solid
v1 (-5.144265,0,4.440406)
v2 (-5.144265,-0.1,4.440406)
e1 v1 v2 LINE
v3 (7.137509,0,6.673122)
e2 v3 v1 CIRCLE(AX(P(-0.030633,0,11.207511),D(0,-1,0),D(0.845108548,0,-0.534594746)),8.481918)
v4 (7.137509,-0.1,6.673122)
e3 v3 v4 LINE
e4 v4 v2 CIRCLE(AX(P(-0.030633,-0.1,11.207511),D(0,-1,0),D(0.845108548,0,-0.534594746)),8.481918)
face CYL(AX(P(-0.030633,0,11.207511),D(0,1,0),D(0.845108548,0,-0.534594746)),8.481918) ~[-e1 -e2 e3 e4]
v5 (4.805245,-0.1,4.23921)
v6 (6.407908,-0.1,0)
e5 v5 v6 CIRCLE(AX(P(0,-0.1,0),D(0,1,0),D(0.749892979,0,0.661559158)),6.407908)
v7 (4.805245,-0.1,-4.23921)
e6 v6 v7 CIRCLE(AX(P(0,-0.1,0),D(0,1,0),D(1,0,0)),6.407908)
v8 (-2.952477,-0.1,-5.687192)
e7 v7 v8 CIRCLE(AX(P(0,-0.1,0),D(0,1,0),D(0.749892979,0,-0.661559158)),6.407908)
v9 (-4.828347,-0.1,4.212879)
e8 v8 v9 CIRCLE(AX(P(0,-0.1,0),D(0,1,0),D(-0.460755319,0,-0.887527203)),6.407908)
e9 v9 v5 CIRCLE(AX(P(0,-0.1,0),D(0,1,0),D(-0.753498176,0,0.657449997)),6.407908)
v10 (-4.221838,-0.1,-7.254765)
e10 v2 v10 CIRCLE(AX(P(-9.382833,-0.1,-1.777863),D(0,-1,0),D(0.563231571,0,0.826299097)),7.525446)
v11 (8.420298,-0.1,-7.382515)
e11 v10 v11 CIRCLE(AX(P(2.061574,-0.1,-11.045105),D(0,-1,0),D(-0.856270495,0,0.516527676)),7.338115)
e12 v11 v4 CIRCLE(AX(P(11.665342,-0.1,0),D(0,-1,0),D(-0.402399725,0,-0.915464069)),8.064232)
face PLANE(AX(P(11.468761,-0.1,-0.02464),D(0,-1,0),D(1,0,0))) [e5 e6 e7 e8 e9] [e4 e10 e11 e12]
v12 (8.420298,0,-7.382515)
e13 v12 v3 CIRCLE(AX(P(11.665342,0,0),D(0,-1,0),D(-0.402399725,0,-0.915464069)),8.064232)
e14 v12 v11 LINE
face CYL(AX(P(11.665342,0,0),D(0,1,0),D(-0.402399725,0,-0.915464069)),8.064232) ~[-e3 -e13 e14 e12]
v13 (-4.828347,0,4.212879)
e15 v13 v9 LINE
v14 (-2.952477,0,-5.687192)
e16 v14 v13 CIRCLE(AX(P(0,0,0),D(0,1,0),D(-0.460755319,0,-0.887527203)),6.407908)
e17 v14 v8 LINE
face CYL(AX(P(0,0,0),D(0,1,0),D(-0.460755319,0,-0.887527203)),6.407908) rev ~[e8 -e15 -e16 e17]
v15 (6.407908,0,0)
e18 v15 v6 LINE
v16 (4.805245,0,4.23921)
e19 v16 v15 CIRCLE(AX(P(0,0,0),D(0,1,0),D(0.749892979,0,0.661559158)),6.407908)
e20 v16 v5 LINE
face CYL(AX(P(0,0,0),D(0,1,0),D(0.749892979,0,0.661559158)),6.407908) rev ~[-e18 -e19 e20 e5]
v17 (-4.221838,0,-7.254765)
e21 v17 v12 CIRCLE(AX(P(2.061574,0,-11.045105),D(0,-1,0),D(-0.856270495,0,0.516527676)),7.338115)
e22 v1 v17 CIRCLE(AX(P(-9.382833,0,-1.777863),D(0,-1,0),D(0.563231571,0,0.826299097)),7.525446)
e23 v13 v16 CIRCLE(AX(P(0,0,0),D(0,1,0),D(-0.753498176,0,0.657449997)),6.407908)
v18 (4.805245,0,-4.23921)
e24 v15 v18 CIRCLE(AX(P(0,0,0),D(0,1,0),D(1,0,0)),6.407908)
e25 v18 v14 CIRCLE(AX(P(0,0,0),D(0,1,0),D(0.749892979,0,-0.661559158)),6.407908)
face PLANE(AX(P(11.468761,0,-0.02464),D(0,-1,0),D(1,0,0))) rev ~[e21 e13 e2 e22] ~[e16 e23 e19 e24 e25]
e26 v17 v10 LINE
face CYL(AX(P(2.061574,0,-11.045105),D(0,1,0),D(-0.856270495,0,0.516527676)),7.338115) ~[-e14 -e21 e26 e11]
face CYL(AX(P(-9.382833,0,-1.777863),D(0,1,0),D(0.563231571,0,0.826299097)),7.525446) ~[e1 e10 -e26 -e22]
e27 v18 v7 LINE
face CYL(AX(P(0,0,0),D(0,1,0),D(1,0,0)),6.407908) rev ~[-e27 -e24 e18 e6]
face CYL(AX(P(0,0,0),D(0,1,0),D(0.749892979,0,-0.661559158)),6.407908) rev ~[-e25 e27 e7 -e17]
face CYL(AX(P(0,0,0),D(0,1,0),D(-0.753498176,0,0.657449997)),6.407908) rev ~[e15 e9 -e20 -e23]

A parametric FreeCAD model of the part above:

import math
import FreeCAD as App
import Part
import Sketcher

V = App.Vector
Q = App.Units.Quantity

doc = App.newDocument("Part")
body = doc.addObject("PartDesign::Body", "Body")

# Sketch on XZ plane
sketch1 = body.newObject("Sketcher::SketchObject", "Sketch")
sketch1.AttachmentSupport = (doc.getObject("XZ_Plane"), [""])
sketch1.MapMode = "FlatFace"
sketch1.addGeometry([
    Part.ArcOfCircle(Part.Circle(V(-9.4, -1.8, 0), V(0, 0, 1), 7.5), math.radians(56), math.radians(313)),  # 0
    Part.ArcOfCircle(Part.Circle(V(2.1, -11, 0), V(0, 0, 1), 7.3), math.radians(149), math.radians(390)),  # 1
    Part.ArcOfCircle(Part.Circle(V(11.7, 0, 0), V(0, 0, 1), 8.1), math.radians(-114), math.radians(124)),  # 2
    Part.ArcOfCircle(Part.Circle(V(0, 11.2, 0), V(0, 0, 1), 8.5), math.radians(-32), math.radians(233)),  # 3
    Part.ArcOfCircle(Part.Circle(V(0, 0, 0), V(0, 0, 1), 6.4), math.radians(-117), math.radians(-41)),  # 4
    Part.ArcOfCircle(Part.Circle(V(0, 0, 0), V(0, 0, 1), 6.4), math.radians(139), math.radians(243)),  # 5
    Part.ArcOfCircle(Part.Circle(V(0, 0, 0), V(0, 0, 1), 6.4), math.radians(41), math.radians(139)),  # 6
    Part.ArcOfCircle(Part.Circle(V(0, 0, 0), V(0, 0, 1), 6.4), math.radians(0), math.radians(41)),  # 7
    Part.ArcOfCircle(Part.Circle(V(0, 0, 0), V(0, 0, 1), 6.4), math.radians(-41), math.radians(0)),  # 8
], False)
sketch1.addConstraint([
    Sketcher.Constraint("Coincident", 0, 2, 1, 1),
    Sketcher.Constraint("Coincident", 1, 2, 2, 1),
    Sketcher.Constraint("Coincident", 2, 2, 3, 1),
    Sketcher.Constraint("Coincident", 3, 2, 0, 1),
    Sketcher.Constraint("Tangent", 4, 1, 5, 2),
    Sketcher.Constraint("Tangent", 5, 1, 6, 2),
    Sketcher.Constraint("Tangent", 6, 1, 7, 2),
    Sketcher.Constraint("Tangent", 7, 1, 8, 2),
    Sketcher.Constraint("Tangent", 8, 1, 4, 2),
    Sketcher.Constraint("Coincident", 4, 3, -1, 1),
    Sketcher.Constraint("Coincident", 6, 3, -1, 1),
    Sketcher.Constraint("PointOnObject", 2, 3, -1),
    Sketcher.Constraint("PointOnObject", 7, 1, -1),
    Sketcher.Constraint("Vertical", 6, 1, 8, 1),
    Sketcher.Constraint("Radius", 3, Q("8.481918 mm")),
    Sketcher.Constraint("Radius", 0, Q("7.525446 mm")),
    Sketcher.Constraint("Radius", 1, Q("7.338115 mm")),
    Sketcher.Constraint("Radius", 2, Q("8.064232 mm")),
    Sketcher.Constraint("Radius", 4, Q("6.407908 mm")),
    Sketcher.Constraint("DistanceX", 0, 3, 3, 3, Q("9.3522 mm")),
    Sketcher.Constraint("DistanceY", -1, 1, 3, 3, Q("11.207511 mm")),
    Sketcher.Constraint("DistanceX", -1, 1, 2, 2, Q("7.137509 mm")),
    Sketcher.Constraint("DistanceY", -1, 1, 5, 1, Q("4.212879 mm")),
    Sketcher.Constraint("DistanceY", -1, 1, 6, 1, Q("4.23921 mm")),
    Sketcher.Constraint("DistanceY", 1, 3, 0, 3, Q("9.267242 mm")),
    Sketcher.Constraint("DistanceX", 1, 3, 2, 3, Q("9.603769 mm")),
    Sketcher.Constraint("DistanceX", 0, 2, 1, 3, Q("6.283412 mm")),
    Sketcher.Constraint("DistanceY", 1, 3, 1, 2, Q("3.66259 mm")),
    Sketcher.Constraint("DistanceX", 0, 2, 4, 1, Q("1.26936 mm")),
])
pad1 = body.newObject("PartDesign::Pad", "Pad")
pad1.Profile = sketch1
pad1.Length = 0.1

doc.recompute()
